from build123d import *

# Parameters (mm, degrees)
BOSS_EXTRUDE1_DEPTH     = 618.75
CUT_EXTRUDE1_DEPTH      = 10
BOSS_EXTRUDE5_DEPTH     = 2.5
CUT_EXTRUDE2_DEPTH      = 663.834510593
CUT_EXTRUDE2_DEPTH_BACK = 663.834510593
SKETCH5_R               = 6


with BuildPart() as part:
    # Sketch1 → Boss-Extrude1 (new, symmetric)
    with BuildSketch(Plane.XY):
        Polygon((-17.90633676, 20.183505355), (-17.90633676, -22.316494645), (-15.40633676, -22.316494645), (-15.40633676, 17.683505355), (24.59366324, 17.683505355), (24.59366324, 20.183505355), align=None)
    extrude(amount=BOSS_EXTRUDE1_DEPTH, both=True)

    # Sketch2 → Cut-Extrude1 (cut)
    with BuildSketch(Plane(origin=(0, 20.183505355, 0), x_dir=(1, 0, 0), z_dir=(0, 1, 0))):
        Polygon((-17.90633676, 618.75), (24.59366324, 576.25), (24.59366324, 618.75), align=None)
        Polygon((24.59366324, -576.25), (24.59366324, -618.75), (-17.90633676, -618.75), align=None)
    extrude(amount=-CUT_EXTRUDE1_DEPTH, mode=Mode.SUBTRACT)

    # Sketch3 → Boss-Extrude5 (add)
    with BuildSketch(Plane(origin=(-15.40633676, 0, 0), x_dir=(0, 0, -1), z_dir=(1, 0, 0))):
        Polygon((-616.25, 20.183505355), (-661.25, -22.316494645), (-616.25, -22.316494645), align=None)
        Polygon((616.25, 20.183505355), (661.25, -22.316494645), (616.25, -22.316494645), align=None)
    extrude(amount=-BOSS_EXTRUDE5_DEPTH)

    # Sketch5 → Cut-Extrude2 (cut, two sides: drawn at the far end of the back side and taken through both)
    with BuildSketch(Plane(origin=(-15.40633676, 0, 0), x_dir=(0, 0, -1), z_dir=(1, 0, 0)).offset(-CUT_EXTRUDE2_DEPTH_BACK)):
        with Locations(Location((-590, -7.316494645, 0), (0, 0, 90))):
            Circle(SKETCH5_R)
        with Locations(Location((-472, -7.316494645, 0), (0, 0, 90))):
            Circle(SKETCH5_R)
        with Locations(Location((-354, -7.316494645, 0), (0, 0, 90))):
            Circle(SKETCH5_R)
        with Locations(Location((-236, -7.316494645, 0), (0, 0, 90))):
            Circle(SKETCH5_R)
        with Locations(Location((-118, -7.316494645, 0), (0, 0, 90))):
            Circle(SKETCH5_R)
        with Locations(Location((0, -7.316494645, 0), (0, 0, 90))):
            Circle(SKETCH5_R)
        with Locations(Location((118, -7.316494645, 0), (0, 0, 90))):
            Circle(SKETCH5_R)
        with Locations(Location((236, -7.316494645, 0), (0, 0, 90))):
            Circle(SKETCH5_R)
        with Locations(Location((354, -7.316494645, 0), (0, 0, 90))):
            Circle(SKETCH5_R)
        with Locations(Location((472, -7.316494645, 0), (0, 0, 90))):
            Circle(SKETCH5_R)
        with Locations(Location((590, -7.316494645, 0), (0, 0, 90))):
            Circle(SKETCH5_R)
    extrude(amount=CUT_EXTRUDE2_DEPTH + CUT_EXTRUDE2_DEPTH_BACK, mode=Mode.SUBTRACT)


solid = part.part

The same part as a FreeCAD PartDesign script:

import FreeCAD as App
import Part
import Sketcher

V = App.Vector
Q = App.Units.Quantity

doc = App.newDocument("Part")
params = doc.addObject("Spreadsheet::Sheet", "Params")
for row, (alias, value) in enumerate([
    ("sketch1_width", "40 mm"),
    ("sketch1_width2", "2.5 mm"),
    ("pad1_length", "1237.5 mm"),
    ("sketch2_width", "42.5 mm"),
    ("pocket1_length", "10 mm"),
    ("sketch3_height", "45 mm"),
    ("sketch3_width", "42.5 mm"),
    ("pad2_length", "2.5 mm"),
    ("sketch4_diameter", "12 mm"),
], start=1):
    params.set(f"A{row}", alias)
    params.set(f"B{row}", "=" + value)
    params.setAlias(f"B{row}", alias)

body = doc.addObject("PartDesign::Body", "Body")

sketch1 = doc.addObject("Sketcher::SketchObject", "Sketch")
body.addObject(sketch1)
sketch1.AttachmentSupport = (doc.XY_Plane, [""])
sketch1.MapMode = "FlatFace"
sketch1.addGeometry([
    Part.LineSegment(V(-17.9, 20.2, 0), V(-17.9, -22.3, 0)),
    Part.LineSegment(V(-17.9, -22.3, 0), V(-15.4, -22.3, 0)),
    Part.LineSegment(V(-15.4, -22.3, 0), V(-15.4, 17.7, 0)),
    Part.LineSegment(V(-15.4, 17.7, 0), V(24.6, 17.7, 0)),
    Part.LineSegment(V(24.6, 17.7, 0), V(24.6, 20.2, 0)),
    Part.LineSegment(V(24.6, 20.2, 0), V(-17.9, 20.2, 0)),
], False)
sketch1.addConstraint([
    Sketcher.Constraint("Coincident", 0, 2, 1, 1),
    Sketcher.Constraint("Coincident", 1, 2, 2, 1),
    Sketcher.Constraint("Coincident", 2, 2, 3, 1),
    Sketcher.Constraint("Coincident", 3, 2, 4, 1),
    Sketcher.Constraint("Coincident", 4, 2, 5, 1),
    Sketcher.Constraint("Coincident", 5, 2, 0, 1),
    Sketcher.Constraint("Vertical", 0),
    Sketcher.Constraint("Horizontal", 1),
    Sketcher.Constraint("Vertical", 2),
    Sketcher.Constraint("Horizontal", 3),
    Sketcher.Constraint("Vertical", 4),
    Sketcher.Constraint("Horizontal", 5),
    Sketcher.Constraint("Equal", 5, 0),
    Sketcher.Constraint("Equal", 3, 2),
    Sketcher.Constraint("DistanceX", 3, 1, 3, 2, Q("40 mm")),
    Sketcher.Constraint("DistanceX", 1, 1, 1, 2, Q("2.5 mm")),
    Sketcher.Constraint("DistanceX", 0, 2, -1, 1, Q("17.906337 mm")),
    Sketcher.Constraint("DistanceY", 0, 2, -1, 1, Q("22.316495 mm")),
])
sketch1.setExpression("Constraints[14]", "Params.sketch1_width")
sketch1.setExpression("Constraints[15]", "Params.sketch1_width2")
pad1 = doc.addObject("PartDesign::Pad", "Pad")
body.addObject(pad1)
pad1.Profile = sketch1
pad1.setExpression("Length", "Params.pad1_length")
pad1.Midplane = True

sketch2 = doc.addObject("Sketcher::SketchObject", "Sketch001")
body.addObject(sketch2)
sketch2.AttachmentSupport = (doc.XZ_Plane, [""])
sketch2.MapMode = "FlatFace"
sketch2.AttachmentOffset = App.Placement(V(0, 0, -20.183505), App.Rotation())
sketch2.addGeometry([
    Part.LineSegment(V(-18, -619, 0), V(25, -576, 0)),
    Part.LineSegment(V(25, -576, 0), V(25, -619, 0)),
    Part.LineSegment(V(25, -619, 0), V(-18, -619, 0)),
    Part.LineSegment(V(25, 619, 0), V(25, 576, 0)),
    Part.LineSegment(V(25, 576, 0), V(-18, 619, 0)),
    Part.LineSegment(V(-18, 619, 0), V(25, 619, 0)),
], False)
sketch2.addConstraint([
    Sketcher.Constraint("Coincident", 0, 2, 1, 1),
    Sketcher.Constraint("Coincident", 1, 2, 2, 1),
    Sketcher.Constraint("Coincident", 2, 2, 0, 1),
    Sketcher.Constraint("Coincident", 3, 2, 4, 1),
    Sketcher.Constraint("Coincident", 4, 2, 5, 1),
    Sketcher.Constraint("Coincident", 5, 2, 3, 1),
    Sketcher.Constraint("Vertical", 1),
    Sketcher.Constraint("Horizontal", 2),
    Sketcher.Constraint("Vertical", 3),
    Sketcher.Constraint("Horizontal", 5),
    Sketcher.Constraint("Symmetric", 0, 2, 3, 2, -1),
    Sketcher.Constraint("Symmetric", 2, 2, 4, 2, -1),
    Sketcher.Constraint("Perpendicular", 0, 4),
    Sketcher.Constraint("DistanceX", 2, 2, 2, 1, Q("42.5 mm")),
    Sketcher.Constraint("DistanceY", 1, 2, 3, 2, Q("1195 mm")),
    Sketcher.Constraint("DistanceX", -1, 1, 0, 2, Q("24.593663 mm")),
])
sketch2.setExpression("Constraints[13]", "Params.sketch2_width")
pocket1 = doc.addObject("PartDesign::Pocket", "Pocket")
body.addObject(pocket1)
pocket1.Profile = sketch2
pocket1.setExpression("Length", "Params.pocket1_length")
pocket1.Reversed = True

sketch3 = doc.addObject("Sketcher::SketchObject", "Sketch002")
body.addObject(sketch3)
sketch3.AttachmentSupport = (doc.YZ_Plane, [""])
sketch3.MapMode = "FlatFace"
sketch3.AttachmentOffset = App.Placement(V(0, 0, -15.406337), App.Rotation())
sketch3.addGeometry([
    Part.LineSegment(V(20, 616, 0), V(-22, 661, 0)),
    Part.LineSegment(V(-22, 661, 0), V(-22, 616, 0)),
    Part.LineSegment(V(-22, 616, 0), V(20, 616, 0)),
    Part.LineSegment(V(-22, -661, 0), V(20, -616, 0)),
    Part.LineSegment(V(20, -616, 0), V(-22, -616, 0)),
    Part.LineSegment(V(-22, -616, 0), V(-22, -661, 0)),
], False)
sketch3.addConstraint([
    Sketcher.Constraint("Coincident", 0, 2, 1, 1),
    Sketcher.Constraint("Coincident", 1, 2, 2, 1),
    Sketcher.Constraint("Coincident", 2, 2, 0, 1),
    Sketcher.Constraint("Coincident", 3, 2, 4, 1),
    Sketcher.Constraint("Coincident", 4, 2, 5, 1),
    Sketcher.Constraint("Coincident", 5, 2, 3, 1),
    Sketcher.Constraint("Vertical", 1),
    Sketcher.Constraint("Horizontal", 2),
    Sketcher.Constraint("Horizontal", 4),
    Sketcher.Constraint("Vertical", 5),
    Sketcher.Constraint("Symmetric", 2, 2, 3, 2, -1),
    Sketcher.Constraint("Symmetric", 0, 2, 5, 2, -1),
    Sketcher.Constraint("DistanceY", 1, 2, 1, 1, Q("45 mm")),
    Sketcher.Constraint("DistanceX", 2, 1, 2, 2, Q("42.5 mm")),
    Sketcher.Constraint("DistanceY", 3, 2, 2, 2, Q("1232.5 mm")),
    Sketcher.Constraint("DistanceX", 0, 2, -1, 1, Q("22.316495 mm")),
])
sketch3.setExpression("Constraints[12]", "Params.sketch3_height")
sketch3.setExpression("Constraints[13]", "Params.sketch3_width")
pad2 = doc.addObject("PartDesign::Pad", "Pad001")
body.addObject(pad2)
pad2.Profile = sketch3
pad2.setExpression("Length", "Params.pad2_length")
pad2.Reversed = True

sketch4 = doc.addObject("Sketcher::SketchObject", "Sketch003")
body.addObject(sketch4)
sketch4.AttachmentSupport = (doc.YZ_Plane, [""])
sketch4.MapMode = "FlatFace"
sketch4.AttachmentOffset = App.Placement(V(0, 0, -15.406337), App.Rotation())
sketch4.addGeometry([
    Part.Circle(V(-7, 590, 0), V(0, 0, 1), 6),
    Part.Circle(V(-7, 472, 0), V(0, 0, 1), 6),
    Part.Circle(V(-7, 354, 0), V(0, 0, 1), 6),
    Part.Circle(V(-7, 236, 0), V(0, 0, 1), 6),
    Part.Circle(V(-7, 118, 0), V(0, 0, 1), 6),
    Part.Circle(V(-7, 0, 0), V(0, 0, 1), 6),
    Part.Circle(V(-7, -118, 0), V(0, 0, 1), 6),
    Part.Circle(V(-7, -236, 0), V(0, 0, 1), 6),
    Part.Circle(V(-7, -354, 0), V(0, 0, 1), 6),
    Part.Circle(V(-7, -472, 0), V(0, 0, 1), 6),
    Part.Circle(V(-7, -590, 0), V(0, 0, 1), 6),
], False)
sketch4.addConstraint([
    Sketcher.Constraint("Equal", 0, 1),
    Sketcher.Constraint("Equal", 1, 2),
    Sketcher.Constraint("Equal", 2, 3),
    Sketcher.Constraint("Equal", 3, 4),
    Sketcher.Constraint("Equal", 4, 5),
    Sketcher.Constraint("Equal", 5, 6),
    Sketcher.Constraint("Equal", 6, 7),
    Sketcher.Constraint("Equal", 7, 8),
    Sketcher.Constraint("Equal", 8, 9),
    Sketcher.Constraint("Equal", 9, 10),
    Sketcher.Constraint("Symmetric", 4, 3, 6, 3, -1),
    Sketcher.Constraint("Symmetric", 3, 3, 7, 3, -1),
    Sketcher.Constraint("Symmetric", 2, 3, 8, 3, -1),
    Sketcher.Constraint("Symmetric", 1, 3, 9, 3, -1),
    Sketcher.Constraint("Symmetric", 0, 3, 10, 3, -1),
    Sketcher.Constraint("PointOnObject", 5, 3, -1),
    Sketcher.Constraint("Vertical", 0, 3, 1, 3),
    Sketcher.Constraint("Vertical", 1, 3, 2, 3),
    Sketcher.Constraint("Vertical", 2, 3, 3, 3),
    Sketcher.Constraint("Vertical", 3, 3, 4, 3),
    Sketcher.Constraint("Vertical", 4, 3, 5, 3),
    Sketcher.Constraint("Diameter", 0, Q("12 mm")),
    Sketcher.Constraint("DistanceY", -1, 1, 0, 3, Q("590 mm")),
    Sketcher.Constraint("DistanceY", -1, 1, 1, 3, Q("472 mm")),
    Sketcher.Constraint("DistanceY", -1, 1, 2, 3, Q("354 mm")),
    Sketcher.Constraint("DistanceY", -1, 1, 3, 3, Q("236 mm")),
    Sketcher.Constraint("DistanceY", -1, 1, 4, 3, Q("118 mm")),
    Sketcher.Constraint("DistanceX", 0, 3, -1, 1, Q("7.316495 mm")),
])
sketch4.setExpression("Constraints[21]", "Params.sketch4_diameter")
pocket2 = doc.addObject("PartDesign::Pocket", "Pocket001")
body.addObject(pocket2)
pocket2.Profile = sketch4
pocket2.Type = "ThroughAll"
pocket2.Midplane = True

doc.recompute()
